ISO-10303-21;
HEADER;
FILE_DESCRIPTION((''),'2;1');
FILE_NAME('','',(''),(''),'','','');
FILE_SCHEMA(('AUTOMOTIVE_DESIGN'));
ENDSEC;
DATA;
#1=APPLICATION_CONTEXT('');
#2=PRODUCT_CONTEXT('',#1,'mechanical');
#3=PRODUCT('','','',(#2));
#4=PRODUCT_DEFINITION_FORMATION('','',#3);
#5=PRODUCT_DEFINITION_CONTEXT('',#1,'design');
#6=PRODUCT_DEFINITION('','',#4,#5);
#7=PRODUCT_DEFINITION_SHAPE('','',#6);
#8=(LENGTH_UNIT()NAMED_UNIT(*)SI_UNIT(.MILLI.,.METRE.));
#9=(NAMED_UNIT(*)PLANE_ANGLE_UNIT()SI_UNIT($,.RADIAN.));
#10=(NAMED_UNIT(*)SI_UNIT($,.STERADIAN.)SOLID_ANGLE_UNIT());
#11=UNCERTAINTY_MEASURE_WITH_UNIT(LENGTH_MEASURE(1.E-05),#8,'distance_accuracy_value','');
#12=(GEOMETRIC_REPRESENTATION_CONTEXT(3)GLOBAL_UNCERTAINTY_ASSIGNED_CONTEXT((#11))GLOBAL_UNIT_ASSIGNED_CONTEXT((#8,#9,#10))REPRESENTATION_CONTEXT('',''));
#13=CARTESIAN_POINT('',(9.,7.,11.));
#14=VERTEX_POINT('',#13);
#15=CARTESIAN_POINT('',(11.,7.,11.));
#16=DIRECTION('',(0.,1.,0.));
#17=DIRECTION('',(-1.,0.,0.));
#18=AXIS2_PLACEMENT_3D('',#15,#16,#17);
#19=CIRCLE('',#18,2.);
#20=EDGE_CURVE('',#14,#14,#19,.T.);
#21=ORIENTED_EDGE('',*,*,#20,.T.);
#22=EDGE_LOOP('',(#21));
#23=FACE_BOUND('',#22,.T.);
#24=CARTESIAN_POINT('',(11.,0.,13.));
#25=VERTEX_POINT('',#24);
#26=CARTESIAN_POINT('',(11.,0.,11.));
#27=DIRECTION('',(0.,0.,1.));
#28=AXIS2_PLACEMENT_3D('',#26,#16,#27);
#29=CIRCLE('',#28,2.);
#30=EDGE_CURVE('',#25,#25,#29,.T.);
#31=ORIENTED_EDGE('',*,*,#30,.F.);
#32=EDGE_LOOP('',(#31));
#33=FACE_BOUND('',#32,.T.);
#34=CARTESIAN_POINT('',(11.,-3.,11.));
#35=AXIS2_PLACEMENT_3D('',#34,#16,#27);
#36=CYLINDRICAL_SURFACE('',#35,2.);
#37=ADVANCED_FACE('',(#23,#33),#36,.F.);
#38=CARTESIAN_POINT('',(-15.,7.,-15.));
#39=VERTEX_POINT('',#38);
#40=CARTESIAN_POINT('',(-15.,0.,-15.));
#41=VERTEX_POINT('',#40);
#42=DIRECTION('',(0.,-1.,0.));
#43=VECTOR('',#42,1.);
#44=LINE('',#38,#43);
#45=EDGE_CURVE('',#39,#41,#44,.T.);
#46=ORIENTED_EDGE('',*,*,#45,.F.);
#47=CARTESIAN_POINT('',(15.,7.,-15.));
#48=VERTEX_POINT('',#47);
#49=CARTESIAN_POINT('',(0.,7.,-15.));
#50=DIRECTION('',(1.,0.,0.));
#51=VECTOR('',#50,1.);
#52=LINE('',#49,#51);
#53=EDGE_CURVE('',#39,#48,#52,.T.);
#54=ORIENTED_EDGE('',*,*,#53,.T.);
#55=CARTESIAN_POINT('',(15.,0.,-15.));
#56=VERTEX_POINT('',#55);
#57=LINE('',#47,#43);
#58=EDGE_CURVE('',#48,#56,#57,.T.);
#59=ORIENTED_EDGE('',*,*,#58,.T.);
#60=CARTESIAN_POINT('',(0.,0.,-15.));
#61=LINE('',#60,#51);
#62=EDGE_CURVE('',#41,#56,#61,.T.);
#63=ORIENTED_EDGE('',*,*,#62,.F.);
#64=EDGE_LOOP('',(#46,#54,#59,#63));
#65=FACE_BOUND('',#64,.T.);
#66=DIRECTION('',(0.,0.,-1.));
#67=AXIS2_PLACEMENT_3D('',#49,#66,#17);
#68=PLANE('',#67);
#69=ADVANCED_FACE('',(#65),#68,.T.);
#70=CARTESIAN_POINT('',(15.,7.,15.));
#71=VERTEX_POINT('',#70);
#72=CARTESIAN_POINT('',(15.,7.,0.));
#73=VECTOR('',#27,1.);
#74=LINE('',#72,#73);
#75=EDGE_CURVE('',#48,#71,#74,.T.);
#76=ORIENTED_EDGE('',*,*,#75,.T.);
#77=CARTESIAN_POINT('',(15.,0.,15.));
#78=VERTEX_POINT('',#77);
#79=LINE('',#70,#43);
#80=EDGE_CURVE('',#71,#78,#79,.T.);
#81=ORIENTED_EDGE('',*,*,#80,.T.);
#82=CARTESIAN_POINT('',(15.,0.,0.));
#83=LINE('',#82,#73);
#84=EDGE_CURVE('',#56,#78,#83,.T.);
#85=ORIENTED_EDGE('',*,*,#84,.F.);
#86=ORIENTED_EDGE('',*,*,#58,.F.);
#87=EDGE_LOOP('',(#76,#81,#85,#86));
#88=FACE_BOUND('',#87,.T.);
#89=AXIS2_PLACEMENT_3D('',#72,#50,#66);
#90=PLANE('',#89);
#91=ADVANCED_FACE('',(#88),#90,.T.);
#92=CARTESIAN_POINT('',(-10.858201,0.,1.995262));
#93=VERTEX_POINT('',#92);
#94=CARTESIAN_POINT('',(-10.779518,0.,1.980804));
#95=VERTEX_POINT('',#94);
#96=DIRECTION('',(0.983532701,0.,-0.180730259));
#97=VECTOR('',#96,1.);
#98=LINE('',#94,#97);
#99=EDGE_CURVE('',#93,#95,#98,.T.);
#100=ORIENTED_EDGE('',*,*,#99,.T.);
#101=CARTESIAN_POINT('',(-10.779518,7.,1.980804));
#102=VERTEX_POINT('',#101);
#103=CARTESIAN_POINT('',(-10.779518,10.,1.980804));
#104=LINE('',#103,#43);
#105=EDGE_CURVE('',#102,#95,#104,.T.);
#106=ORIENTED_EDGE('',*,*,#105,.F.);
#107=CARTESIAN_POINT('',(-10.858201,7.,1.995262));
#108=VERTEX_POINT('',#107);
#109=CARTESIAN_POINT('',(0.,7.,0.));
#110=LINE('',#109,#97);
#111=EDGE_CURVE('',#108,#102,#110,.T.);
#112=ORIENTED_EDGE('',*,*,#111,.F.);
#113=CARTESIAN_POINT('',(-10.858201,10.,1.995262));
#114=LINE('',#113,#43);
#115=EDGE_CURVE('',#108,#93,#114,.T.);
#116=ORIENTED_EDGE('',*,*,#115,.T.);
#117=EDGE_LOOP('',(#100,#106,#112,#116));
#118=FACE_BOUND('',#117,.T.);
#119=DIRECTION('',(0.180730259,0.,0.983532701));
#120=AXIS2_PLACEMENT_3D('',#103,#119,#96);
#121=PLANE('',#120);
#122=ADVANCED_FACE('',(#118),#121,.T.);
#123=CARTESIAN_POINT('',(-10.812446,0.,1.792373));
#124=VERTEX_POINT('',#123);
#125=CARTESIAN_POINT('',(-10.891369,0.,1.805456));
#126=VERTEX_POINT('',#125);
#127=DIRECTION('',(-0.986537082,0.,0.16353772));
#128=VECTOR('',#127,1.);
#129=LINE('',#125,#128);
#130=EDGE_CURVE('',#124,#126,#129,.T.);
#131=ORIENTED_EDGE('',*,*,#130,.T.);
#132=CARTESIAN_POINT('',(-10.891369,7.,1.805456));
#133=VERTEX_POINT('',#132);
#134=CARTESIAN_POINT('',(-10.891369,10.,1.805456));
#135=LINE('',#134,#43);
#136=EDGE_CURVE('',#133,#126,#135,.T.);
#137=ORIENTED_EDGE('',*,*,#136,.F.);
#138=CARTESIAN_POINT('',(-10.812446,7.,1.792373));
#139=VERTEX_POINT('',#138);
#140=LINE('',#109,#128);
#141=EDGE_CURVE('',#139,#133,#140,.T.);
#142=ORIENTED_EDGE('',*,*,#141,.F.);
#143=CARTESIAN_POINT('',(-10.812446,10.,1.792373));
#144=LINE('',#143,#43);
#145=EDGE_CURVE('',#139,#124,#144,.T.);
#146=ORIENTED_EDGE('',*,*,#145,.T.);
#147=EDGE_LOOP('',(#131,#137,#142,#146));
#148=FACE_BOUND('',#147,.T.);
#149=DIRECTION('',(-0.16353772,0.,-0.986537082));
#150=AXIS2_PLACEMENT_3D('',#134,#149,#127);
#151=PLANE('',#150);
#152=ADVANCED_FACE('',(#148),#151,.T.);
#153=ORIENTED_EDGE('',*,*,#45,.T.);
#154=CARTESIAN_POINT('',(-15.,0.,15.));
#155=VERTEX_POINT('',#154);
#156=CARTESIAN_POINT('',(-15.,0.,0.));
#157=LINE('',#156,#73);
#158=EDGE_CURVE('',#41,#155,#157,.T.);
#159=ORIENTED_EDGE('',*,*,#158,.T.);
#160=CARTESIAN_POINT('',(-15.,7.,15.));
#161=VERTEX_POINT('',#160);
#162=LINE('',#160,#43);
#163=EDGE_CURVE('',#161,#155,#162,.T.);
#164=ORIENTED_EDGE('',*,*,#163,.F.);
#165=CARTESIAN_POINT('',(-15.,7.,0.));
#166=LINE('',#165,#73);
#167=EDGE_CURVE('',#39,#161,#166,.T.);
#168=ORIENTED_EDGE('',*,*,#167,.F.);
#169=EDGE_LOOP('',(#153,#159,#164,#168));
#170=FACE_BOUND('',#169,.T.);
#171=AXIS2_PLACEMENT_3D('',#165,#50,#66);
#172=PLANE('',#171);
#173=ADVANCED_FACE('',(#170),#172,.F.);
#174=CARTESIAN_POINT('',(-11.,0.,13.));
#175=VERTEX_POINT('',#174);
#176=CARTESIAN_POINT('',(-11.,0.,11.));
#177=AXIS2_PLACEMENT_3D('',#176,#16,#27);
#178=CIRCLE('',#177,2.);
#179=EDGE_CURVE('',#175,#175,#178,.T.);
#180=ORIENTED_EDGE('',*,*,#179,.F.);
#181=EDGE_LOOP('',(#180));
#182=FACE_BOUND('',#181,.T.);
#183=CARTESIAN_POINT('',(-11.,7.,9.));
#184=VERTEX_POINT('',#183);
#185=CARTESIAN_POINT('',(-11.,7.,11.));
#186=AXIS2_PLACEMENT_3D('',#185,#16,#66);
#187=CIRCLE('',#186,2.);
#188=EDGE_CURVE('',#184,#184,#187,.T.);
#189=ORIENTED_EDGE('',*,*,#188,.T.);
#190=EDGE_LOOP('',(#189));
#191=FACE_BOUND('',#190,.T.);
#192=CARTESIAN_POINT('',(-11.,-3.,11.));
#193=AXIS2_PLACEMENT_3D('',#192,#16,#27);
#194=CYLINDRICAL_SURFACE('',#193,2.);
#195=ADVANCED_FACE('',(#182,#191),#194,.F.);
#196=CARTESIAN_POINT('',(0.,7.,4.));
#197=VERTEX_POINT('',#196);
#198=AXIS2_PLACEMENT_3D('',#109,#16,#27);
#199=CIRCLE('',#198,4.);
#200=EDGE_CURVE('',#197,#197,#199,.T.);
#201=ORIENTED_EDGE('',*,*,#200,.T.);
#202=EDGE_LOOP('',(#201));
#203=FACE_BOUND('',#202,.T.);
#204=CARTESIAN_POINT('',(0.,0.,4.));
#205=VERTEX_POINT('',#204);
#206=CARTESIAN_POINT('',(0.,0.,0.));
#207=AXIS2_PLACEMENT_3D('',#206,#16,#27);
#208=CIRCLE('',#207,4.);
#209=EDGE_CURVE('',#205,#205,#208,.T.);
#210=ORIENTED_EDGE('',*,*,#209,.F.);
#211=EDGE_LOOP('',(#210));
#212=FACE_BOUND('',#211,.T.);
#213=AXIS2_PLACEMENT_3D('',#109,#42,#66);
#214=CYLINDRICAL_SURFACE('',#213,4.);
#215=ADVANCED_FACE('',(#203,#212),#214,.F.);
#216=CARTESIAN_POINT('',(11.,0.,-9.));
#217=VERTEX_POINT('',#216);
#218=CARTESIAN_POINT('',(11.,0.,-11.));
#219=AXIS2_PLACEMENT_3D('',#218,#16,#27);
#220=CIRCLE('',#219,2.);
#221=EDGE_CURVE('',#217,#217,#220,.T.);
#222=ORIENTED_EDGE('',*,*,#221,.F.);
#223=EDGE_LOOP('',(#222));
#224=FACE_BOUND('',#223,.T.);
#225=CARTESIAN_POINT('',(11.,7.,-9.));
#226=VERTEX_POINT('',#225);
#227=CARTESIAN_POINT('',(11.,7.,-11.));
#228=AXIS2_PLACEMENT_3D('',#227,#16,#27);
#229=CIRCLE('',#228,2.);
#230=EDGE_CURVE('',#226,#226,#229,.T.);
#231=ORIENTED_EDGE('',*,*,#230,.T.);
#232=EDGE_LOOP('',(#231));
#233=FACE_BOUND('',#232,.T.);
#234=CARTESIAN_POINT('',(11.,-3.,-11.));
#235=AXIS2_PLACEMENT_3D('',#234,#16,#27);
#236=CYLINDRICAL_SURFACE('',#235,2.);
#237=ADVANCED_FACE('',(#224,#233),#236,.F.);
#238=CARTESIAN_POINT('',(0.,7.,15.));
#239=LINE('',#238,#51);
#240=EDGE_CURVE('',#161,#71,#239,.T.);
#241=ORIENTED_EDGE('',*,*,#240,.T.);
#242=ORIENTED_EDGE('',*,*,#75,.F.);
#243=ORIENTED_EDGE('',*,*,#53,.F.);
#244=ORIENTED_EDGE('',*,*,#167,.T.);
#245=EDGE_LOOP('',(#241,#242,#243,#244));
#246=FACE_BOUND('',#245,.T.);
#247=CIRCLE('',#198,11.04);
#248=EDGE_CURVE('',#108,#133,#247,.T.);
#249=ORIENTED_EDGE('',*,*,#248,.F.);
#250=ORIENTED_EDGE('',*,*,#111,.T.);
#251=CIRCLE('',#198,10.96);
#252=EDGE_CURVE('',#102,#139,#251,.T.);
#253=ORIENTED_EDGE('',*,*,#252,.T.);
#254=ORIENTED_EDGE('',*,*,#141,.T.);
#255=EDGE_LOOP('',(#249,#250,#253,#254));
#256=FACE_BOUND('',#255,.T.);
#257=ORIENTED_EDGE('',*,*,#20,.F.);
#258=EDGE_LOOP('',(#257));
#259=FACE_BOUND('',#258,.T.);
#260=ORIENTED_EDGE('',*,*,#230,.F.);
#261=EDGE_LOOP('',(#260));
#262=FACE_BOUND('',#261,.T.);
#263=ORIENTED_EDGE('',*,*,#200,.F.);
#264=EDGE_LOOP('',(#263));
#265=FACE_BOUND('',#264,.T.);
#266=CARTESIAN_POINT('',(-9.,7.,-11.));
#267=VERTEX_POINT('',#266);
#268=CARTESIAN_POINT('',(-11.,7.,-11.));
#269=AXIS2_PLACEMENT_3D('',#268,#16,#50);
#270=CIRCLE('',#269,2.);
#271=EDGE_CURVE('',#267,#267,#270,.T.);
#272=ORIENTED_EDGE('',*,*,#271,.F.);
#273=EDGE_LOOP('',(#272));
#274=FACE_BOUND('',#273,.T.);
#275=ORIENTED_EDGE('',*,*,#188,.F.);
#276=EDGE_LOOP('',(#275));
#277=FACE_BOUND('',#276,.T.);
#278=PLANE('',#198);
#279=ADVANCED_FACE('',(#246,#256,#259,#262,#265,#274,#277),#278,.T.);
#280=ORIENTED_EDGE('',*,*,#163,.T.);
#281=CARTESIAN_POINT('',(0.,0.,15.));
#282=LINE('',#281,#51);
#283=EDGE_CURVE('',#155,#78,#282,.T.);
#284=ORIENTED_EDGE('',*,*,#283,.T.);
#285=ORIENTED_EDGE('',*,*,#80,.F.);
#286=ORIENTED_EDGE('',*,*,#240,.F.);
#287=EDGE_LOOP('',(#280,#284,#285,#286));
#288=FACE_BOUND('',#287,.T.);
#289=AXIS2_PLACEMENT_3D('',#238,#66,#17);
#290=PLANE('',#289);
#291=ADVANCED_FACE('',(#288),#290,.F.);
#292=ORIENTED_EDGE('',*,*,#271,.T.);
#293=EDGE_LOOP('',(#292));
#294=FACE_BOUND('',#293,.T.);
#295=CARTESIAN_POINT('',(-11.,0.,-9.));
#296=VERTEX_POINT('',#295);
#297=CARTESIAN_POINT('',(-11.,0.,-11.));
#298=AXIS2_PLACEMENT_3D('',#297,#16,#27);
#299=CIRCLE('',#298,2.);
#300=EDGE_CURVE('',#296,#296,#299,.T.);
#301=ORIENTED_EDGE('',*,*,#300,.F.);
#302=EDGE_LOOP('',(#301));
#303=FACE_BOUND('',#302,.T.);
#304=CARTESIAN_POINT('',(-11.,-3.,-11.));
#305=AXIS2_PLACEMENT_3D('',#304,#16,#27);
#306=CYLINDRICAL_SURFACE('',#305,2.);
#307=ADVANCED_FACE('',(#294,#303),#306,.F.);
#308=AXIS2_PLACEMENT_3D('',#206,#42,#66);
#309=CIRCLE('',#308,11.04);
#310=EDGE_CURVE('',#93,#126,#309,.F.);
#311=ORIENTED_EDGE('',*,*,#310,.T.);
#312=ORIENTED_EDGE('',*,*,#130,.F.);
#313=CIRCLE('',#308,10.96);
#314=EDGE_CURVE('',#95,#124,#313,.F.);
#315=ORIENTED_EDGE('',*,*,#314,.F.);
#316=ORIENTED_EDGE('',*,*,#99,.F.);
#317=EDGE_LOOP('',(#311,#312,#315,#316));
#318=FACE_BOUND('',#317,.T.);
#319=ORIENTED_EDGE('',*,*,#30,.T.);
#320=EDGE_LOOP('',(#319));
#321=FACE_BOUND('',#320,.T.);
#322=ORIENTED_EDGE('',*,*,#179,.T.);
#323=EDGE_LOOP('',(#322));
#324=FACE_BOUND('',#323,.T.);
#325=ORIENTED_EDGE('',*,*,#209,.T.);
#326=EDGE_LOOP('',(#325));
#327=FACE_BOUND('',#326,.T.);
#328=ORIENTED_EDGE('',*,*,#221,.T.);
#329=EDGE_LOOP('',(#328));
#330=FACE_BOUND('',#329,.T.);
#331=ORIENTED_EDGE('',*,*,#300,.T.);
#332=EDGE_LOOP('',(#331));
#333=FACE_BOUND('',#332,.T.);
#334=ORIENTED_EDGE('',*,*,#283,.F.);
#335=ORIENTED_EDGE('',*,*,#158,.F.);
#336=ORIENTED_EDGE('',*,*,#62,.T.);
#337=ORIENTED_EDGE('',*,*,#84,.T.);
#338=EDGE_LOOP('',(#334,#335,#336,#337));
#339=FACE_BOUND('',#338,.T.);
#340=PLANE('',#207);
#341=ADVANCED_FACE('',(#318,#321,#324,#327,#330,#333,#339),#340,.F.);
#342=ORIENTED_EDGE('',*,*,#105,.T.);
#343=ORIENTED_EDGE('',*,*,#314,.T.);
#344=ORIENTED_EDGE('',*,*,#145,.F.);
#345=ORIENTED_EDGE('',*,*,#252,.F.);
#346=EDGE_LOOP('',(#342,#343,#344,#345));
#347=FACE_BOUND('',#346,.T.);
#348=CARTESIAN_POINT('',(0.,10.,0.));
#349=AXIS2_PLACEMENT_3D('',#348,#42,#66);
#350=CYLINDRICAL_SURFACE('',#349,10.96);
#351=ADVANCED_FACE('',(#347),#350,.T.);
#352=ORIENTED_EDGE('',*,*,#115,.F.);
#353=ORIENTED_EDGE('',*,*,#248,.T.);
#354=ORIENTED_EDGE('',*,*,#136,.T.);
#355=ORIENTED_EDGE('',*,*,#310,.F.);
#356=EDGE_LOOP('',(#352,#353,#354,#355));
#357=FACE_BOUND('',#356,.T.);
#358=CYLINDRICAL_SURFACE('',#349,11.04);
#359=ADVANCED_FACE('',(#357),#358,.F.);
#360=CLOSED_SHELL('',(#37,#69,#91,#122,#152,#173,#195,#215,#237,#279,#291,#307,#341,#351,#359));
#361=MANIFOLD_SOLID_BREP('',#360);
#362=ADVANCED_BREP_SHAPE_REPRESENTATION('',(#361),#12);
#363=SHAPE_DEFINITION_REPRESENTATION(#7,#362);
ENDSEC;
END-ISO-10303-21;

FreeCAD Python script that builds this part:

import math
import FreeCAD as App
import Part
import Sketcher

V = App.Vector

doc = App.newDocument("Part")
body = doc.addObject("PartDesign::Body", "Body")

# Sketch on XZ plane
sketch1 = body.newObject("Sketcher::SketchObject", "Sketch")
sketch1.AttachmentSupport = (doc.getObject("XZ_Plane"), [""])
sketch1.MapMode = "FlatFace"
sketch1.addGeometry([
    Part.LineSegment(V(-15, -15, 0), V(-15, 15, 0)),  # 0
    Part.LineSegment(V(-15, 15, 0), V(15, 15, 0)),  # 1
    Part.LineSegment(V(15, 15, 0), V(15, -15, 0)),  # 2
    Part.LineSegment(V(15, -15, 0), V(-15, -15, 0)),  # 3
    Part.Circle(V(0, 0, 0), V(0, 0, 1), 4),  # 4
], False)
sketch1.addConstraint([
    Sketcher.Constraint("Coincident", 0, 2, 1, 1),
    Sketcher.Constraint("Coincident", 1, 2, 2, 1),
    Sketcher.Constraint("Coincident", 2, 2, 3, 1),
    Sketcher.Constraint("Coincident", 3, 2, 0, 1),
    Sketcher.Constraint("Vertical", 0),
    Sketcher.Constraint("Horizontal", 1),
    Sketcher.Constraint("Vertical", 2),
    Sketcher.Constraint("Horizontal", 3),
    Sketcher.Constraint("Coincident", 4, 3, -1, 1),
    Sketcher.Constraint("Symmetric", 0, 2, 2, 2, -1, 1),
    Sketcher.Constraint("Equal", 3, 0),
    Sketcher.Constraint("Diameter", 4, 8.0),
    Sketcher.Constraint("DistanceX", 1, 1, 1, 2, 30.0),
])
pad1 = body.newObject("PartDesign::Pad", "Pad")
pad1.Profile = sketch1
pad1.Length = 7
pad1.Reversed = True

# Sketch on XZ plane
sketch2 = body.newObject("Sketcher::SketchObject", "Sketch001")
sketch2.AttachmentSupport = (doc.getObject("XZ_Plane"), [""])
sketch2.MapMode = "FlatFace"
sketch2.addGeometry([
    Part.ArcOfCircle(Part.Circle(V(0, 0, 0), V(0, 0, 1), 11.04), math.radians(170.587702), math.radians(529.587702)),
    Part.LineSegment(V(-10.858201, 1.995262, 0), V(-10.779518, 1.980804, 0)),
    Part.ArcOfCircle(Part.Circle(V(0, 0, 0), V(0, 0, 1), 10.96), math.radians(170.587702), math.radians(529.587702)),
    Part.LineSegment(V(-10.812446, 1.792373, 0), V(-10.891369, 1.805456, 0)),
], False)
sketch2.addConstraint([
    Sketcher.Constraint("Coincident", 0, 2, 1, 1),
    Sketcher.Constraint("Coincident", 1, 2, 2, 2),
    Sketcher.Constraint("Coincident", 2, 1, 3, 1),
    Sketcher.Constraint("Coincident", 3, 2, 0, 1),
    Sketcher.Constraint("Coincident", 0, 3, -1, 1),
    Sketcher.Constraint("Coincident", 2, 3, -1, 1),
    Sketcher.Constraint("Radius", 0, 11.04),
    Sketcher.Constraint("Radius", 2, 10.96),
    Sketcher.Constraint("DistanceX", 0, 2, -1, 1, 10.858201),
    Sketcher.Constraint("DistanceX", 1, 2, -1, 1, 10.779518),
    Sketcher.Constraint("DistanceX", 3, 2, -1, 1, 10.891369),
    Sketcher.Constraint("DistanceX", 2, 1, 1, 2, 0.032928),
])
pocket1 = body.newObject("PartDesign::Pocket", "Pocket")
pocket1.Profile = sketch2
pocket1.Type = "ThroughAll"
pocket1.Midplane = True

# Sketch on XZ plane
sketch3 = body.newObject("Sketcher::SketchObject", "Sketch002")
sketch3.AttachmentSupport = (doc.getObject("XZ_Plane"), [""])
sketch3.MapMode = "FlatFace"
sketch3.AttachmentOffset = App.Placement(V(0, 0, -7), App.Rotation())
sketch3.addGeometry(Part.Circle(V(11, -11, 0), V(0, 0, 1), 2), False)
sketch3.addConstraint([
    Sketcher.Constraint("Diameter", 0, 4.0),
    Sketcher.Constraint("DistanceX", -1, 1, 0, 3, 11.0),
    Sketcher.Constraint("DistanceY", 0, 3, -1, 1, 11.0),
])
pocket2 = body.newObject("PartDesign::Pocket", "Pocket001")
pocket2.Profile = sketch3
pocket2.Length = 10
pocket2.Reversed = True
doc.recompute()

polarpattern = body.newObject("PartDesign::PolarPattern", "PolarPattern")
polarpattern.Originals = [pocket2]
polarpattern.Axis = (doc.getObject("Y_Axis"), [""])
polarpattern.Angle = 360
polarpattern.Occurrences = 4
body.Tip = polarpattern

doc.recompute()
